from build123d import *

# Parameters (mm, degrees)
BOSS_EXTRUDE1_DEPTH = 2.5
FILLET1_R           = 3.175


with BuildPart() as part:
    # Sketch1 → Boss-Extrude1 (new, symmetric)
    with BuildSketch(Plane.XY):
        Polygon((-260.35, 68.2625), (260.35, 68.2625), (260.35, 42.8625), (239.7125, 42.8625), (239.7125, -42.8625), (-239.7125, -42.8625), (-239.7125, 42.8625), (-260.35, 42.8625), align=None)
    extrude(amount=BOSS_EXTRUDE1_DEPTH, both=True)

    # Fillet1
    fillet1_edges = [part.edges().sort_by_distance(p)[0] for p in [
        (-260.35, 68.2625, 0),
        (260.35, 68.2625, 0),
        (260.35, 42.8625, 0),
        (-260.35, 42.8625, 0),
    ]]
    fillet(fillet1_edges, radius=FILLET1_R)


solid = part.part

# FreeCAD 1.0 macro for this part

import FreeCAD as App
import Part
import Sketcher

V = App.Vector
Q = App.Units.Quantity


def edges_at(feature, points):
    """Names of the edges that pass closest to the given points."""
    edges = feature.Shape.Edges
    near = lambda p: min(range(len(edges)), key=lambda i: edges[i].distToShape(Part.Vertex(*p))[0])
    return sorted({f"Edge{near(p) + 1}" for p in points})

doc = App.newDocument("Part")
body = doc.addObject("PartDesign::Body", "Body")

# Sketch on XY plane
sketch1 = body.newObject("Sketcher::SketchObject", "Sketch")
sketch1.AttachmentSupport = (doc.getObject("XY_Plane"), [""])
sketch1.MapMode = "FlatFace"
sketch1.addGeometry([
    Part.LineSegment(V(260, 68, 0), V(-260, 68, 0)),  # 0
    Part.LineSegment(V(-260, 68, 0), V(-260, 43, 0)),  # 1
    Part.LineSegment(V(-260, 43, 0), V(-240, 43, 0)),  # 2
    Part.LineSegment(V(-240, 43, 0), V(-240, -43, 0)),  # 3
    Part.LineSegment(V(-240, -43, 0), V(240, -43, 0)),  # 4
    Part.LineSegment(V(240, -43, 0), V(240, 43, 0)),  # 5
    Part.LineSegment(V(240, 43, 0), V(260, 43, 0)),  # 6
    Part.LineSegment(V(260, 43, 0), V(260, 68, 0)),  # 7
], False)
sketch1.addConstraint([
    Sketcher.Constraint("Coincident", 0, 2, 1, 1),
    Sketcher.Constraint("Coincident", 1, 2, 2, 1),
    Sketcher.Constraint("Coincident", 2, 2, 3, 1),
    Sketcher.Constraint("Coincident", 3, 2, 4, 1),
    Sketcher.Constraint("Coincident", 4, 2, 5, 1),
    Sketcher.Constraint("Coincident", 5, 2, 6, 1),
    Sketcher.Constraint("Coincident", 6, 2, 7, 1),
    Sketcher.Constraint("Coincident", 7, 2, 0, 1),
    Sketcher.Constraint("Horizontal", 0),
    Sketcher.Constraint("Vertical", 1),
    Sketcher.Constraint("Horizontal", 2),
    Sketcher.Constraint("Vertical", 3),
    Sketcher.Constraint("Horizontal", 4),
    Sketcher.Constraint("Vertical", 5),
    Sketcher.Constraint("Horizontal", 6),
    Sketcher.Constraint("Vertical", 7),
    Sketcher.Constraint("Symmetric", 2, 2, 4, 2, -1, 1),
    Sketcher.Constraint("Symmetric", 1, 2, 6, 2, -2),
    Sketcher.Constraint("DistanceY", 1, 2, 1, 1, Q("1 in")),
    Sketcher.Constraint("DistanceX", 0, 2, 0, 1, Q("20.5 in")),
    Sketcher.Constraint("DistanceX", 2, 1, 2, 2, Q("0.8125 in")),
    Sketcher.Constraint("DistanceY", 3, 2, 3, 1, Q("3.375 in")),
])
pad1 = body.newObject("PartDesign::Pad", "Pad")
pad1.Profile = sketch1
pad1.Length = 5
pad1.Midplane = True
doc.recompute()

fillet = body.newObject("PartDesign::Fillet", "Fillet")
fillet.Base = (pad1, edges_at(pad1, [
    (-260.35, 68.263, 0),
    (260.35, 68.263, 0),
    (260.35, 42.862, 0),
    (-260.35, 42.862, 0),
]))
fillet.Radius = Q("0.125 in")

doc.recompute()
